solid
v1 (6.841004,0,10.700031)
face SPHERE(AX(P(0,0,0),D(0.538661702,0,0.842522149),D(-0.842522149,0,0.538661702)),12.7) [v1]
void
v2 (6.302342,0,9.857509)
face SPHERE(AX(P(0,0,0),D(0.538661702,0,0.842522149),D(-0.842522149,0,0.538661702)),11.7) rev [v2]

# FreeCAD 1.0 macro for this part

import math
import FreeCAD as App
import Part
import Sketcher

V = App.Vector
Q = App.Units.Quantity

doc = App.newDocument("Part")
body = doc.addObject("PartDesign::Body", "Body")

# Sketch on XZ plane
sketch1 = doc.addObject("Sketcher::SketchObject", "Sketch")
body.addObject(sketch1)
sketch1.AttachmentSupport = (doc.XZ_Plane, [""])
sketch1.MapMode = "FlatFace"
sketch1.addGeometry([
    Part.ArcOfCircle(Part.Circle(V(0, 0, 0), V(0, 0, 1), 12.7), math.radians(-122.592581), math.radians(57.407419)),
    Part.LineSegment(V(-6.841004, -10.700031, 0), V(-6.302342, -9.857509, 0)),
    Part.ArcOfCircle(Part.Circle(V(0, 0, 0), V(0, 0, 1), 11.7), math.radians(-122.592581), math.radians(57.407419)),
    Part.LineSegment(V(6.302342, 9.857509, 0), V(6.841004, 10.700031, 0)),
], False)
sketch1.addGeometry(Part.LineSegment(V(6.841004, 10.700031, 0), V(-6.841004, -10.700031, 0)), True)  # axis
sketch1.addConstraint([
    Sketcher.Constraint("Coincident", 0, 1, 1, 1),
    Sketcher.Constraint("Coincident", 1, 2, 2, 1),
    Sketcher.Constraint("Coincident", 2, 2, 3, 1),
    Sketcher.Constraint("Coincident", 3, 2, 0, 2),
    Sketcher.Constraint("Coincident", 0, 3, -1, 1),
    Sketcher.Constraint("Coincident", 2, 3, -1, 1),
    Sketcher.Constraint("Coincident", 4, 1, 3, 2),
    Sketcher.Constraint("Coincident", 4, 2, 0, 1),
    Sketcher.Constraint("Parallel", 1, 3),
    Sketcher.Constraint("Parallel", 3, 4),
    Sketcher.Constraint("Radius", 0, Q("12.7 mm")),
    Sketcher.Constraint("Radius", 2, Q("11.7 mm")),
    Sketcher.Constraint("DistanceY", 0, 1, -1, 1, Q("10.700031 mm")),
    Sketcher.Constraint("DistanceX", 1, 2, -1, 1, Q("6.302342 mm")),
])
revolution = doc.addObject("PartDesign::Revolution", "Revolution")
body.addObject(revolution)
revolution.Profile = sketch1
revolution.ReferenceAxis = (sketch1, ["Axis0"])
revolution.Angle = 360

doc.recompute()
